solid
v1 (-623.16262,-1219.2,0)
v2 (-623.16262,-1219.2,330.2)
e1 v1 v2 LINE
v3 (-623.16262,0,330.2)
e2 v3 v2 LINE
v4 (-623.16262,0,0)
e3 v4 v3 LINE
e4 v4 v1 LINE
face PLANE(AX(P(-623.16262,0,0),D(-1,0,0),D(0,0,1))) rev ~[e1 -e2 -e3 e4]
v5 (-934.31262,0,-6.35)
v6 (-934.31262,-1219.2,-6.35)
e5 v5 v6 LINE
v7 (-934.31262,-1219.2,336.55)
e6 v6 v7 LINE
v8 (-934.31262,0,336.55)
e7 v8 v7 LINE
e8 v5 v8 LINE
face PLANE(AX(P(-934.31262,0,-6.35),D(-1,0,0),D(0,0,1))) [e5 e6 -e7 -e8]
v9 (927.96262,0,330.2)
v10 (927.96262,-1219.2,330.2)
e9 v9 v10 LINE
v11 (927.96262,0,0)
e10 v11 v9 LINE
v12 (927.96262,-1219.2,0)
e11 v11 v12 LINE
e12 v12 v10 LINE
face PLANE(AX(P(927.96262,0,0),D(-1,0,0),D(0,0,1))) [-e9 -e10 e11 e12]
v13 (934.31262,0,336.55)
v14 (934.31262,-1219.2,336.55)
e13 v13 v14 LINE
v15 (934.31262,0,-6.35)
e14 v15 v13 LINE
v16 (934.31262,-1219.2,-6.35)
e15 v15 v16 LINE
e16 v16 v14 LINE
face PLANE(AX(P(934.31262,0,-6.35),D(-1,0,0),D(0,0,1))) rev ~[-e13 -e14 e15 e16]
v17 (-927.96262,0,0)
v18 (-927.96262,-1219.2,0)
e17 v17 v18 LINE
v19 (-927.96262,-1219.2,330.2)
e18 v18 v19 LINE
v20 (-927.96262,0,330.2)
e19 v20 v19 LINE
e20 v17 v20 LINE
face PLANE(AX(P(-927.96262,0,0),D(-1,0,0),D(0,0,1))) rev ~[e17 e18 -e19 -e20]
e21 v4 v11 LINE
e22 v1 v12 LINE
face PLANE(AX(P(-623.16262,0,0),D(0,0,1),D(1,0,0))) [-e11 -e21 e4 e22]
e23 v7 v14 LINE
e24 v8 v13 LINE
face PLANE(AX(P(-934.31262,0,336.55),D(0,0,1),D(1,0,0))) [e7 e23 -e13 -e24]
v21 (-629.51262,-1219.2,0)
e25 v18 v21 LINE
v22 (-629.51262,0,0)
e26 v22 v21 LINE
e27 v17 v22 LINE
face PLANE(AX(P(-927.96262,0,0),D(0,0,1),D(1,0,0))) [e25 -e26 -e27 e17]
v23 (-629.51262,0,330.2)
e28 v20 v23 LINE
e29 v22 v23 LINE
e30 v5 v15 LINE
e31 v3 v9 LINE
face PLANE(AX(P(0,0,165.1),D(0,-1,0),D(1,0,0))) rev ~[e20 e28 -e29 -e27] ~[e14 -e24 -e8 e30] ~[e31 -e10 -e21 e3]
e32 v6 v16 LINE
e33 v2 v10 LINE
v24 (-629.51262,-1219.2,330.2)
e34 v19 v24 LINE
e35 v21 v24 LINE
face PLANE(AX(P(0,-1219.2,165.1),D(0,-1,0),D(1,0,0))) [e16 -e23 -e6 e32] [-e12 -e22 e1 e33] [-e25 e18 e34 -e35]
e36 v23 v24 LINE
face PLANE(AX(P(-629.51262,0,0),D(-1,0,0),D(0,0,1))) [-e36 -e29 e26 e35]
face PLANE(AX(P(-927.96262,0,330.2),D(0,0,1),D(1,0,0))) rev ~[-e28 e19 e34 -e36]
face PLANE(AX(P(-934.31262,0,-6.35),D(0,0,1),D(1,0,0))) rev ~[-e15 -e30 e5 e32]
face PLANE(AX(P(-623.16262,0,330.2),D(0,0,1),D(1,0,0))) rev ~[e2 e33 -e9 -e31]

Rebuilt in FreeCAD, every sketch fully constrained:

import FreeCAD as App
import Part
import Sketcher
from FreeCAD import Vector
Q = App.Units.Quantity

doc = App.newDocument("Part")
params = doc.addObject("Spreadsheet::Sheet", "Params")
for row, (alias, value) in enumerate([
    ("sketch1_height", "13 in"),
    ("sketch1_height2", "13.5 in"),
    ("sketch1_width", "11.75 in"),
    ("pad1_length", "48 in"),
], start=1):
    params.set(f"A{row}", alias)
    params.set(f"B{row}", "=" + value)
    params.setAlias(f"B{row}", alias)

body = doc.addObject("PartDesign::Body", "Body")

# Sketch on XZ plane
sketch1 = doc.addObject("Sketcher::SketchObject", "Sketch")
body.addObject(sketch1)
sketch1.AttachmentSupport = (doc.XZ_Plane, [""])
sketch1.MapMode = "FlatFace"
sketch1.addGeometry(Part.LineSegment(Vector(-934.31262, 336.55, 0), Vector(-934.31262, -6.35, 0)), False)
sketch1.addGeometry(Part.LineSegment(Vector(-934.31262, -6.35, 0), Vector(934.31262, -6.35, 0)), False)
sketch1.addGeometry(Part.LineSegment(Vector(934.31262, -6.35, 0), Vector(934.31262, 336.55, 0)), False)
sketch1.addGeometry(Part.LineSegment(Vector(934.31262, 336.55, 0), Vector(-934.31262, 336.55, 0)), False)
sketch1.addGeometry(Part.LineSegment(Vector(-629.51262, 0, 0), Vector(-927.96262, 0, 0)), False)
sketch1.addGeometry(Part.LineSegment(Vector(-927.96262, 0, 0), Vector(-927.96262, 330.2, 0)), False)
sketch1.addGeometry(Part.LineSegment(Vector(-927.96262, 330.2, 0), Vector(-629.51262, 330.2, 0)), False)
sketch1.addGeometry(Part.LineSegment(Vector(-629.51262, 330.2, 0), Vector(-629.51262, 0, 0)), False)
sketch1.addGeometry(Part.LineSegment(Vector(927.96262, 0, 0), Vector(-623.16262, 0, 0)), False)
sketch1.addGeometry(Part.LineSegment(Vector(-623.16262, 0, 0), Vector(-623.16262, 330.2, 0)), False)
sketch1.addGeometry(Part.LineSegment(Vector(-623.16262, 330.2, 0), Vector(927.96262, 330.2, 0)), False)
sketch1.addGeometry(Part.LineSegment(Vector(927.96262, 330.2, 0), Vector(927.96262, 0, 0)), False)
sketch1.addConstraint(Sketcher.Constraint("Coincident", 0, 2, 1, 1))
sketch1.addConstraint(Sketcher.Constraint("Coincident", 1, 2, 2, 1))
sketch1.addConstraint(Sketcher.Constraint("Coincident", 2, 2, 3, 1))
sketch1.addConstraint(Sketcher.Constraint("Coincident", 3, 2, 0, 1))
sketch1.addConstraint(Sketcher.Constraint("Coincident", 4, 2, 5, 1))
sketch1.addConstraint(Sketcher.Constraint("Coincident", 5, 2, 6, 1))
sketch1.addConstraint(Sketcher.Constraint("Coincident", 6, 2, 7, 1))
sketch1.addConstraint(Sketcher.Constraint("Coincident", 7, 2, 4, 1))
sketch1.addConstraint(Sketcher.Constraint("Coincident", 8, 2, 9, 1))
sketch1.addConstraint(Sketcher.Constraint("Coincident", 9, 2, 10, 1))
sketch1.addConstraint(Sketcher.Constraint("Coincident", 10, 2, 11, 1))
sketch1.addConstraint(Sketcher.Constraint("Coincident", 11, 2, 8, 1))
sketch1.addConstraint(Sketcher.Constraint("Vertical", 0))
sketch1.addConstraint(Sketcher.Constraint("Horizontal", 1))
sketch1.addConstraint(Sketcher.Constraint("Vertical", 2))
sketch1.addConstraint(Sketcher.Constraint("Horizontal", 3))
sketch1.addConstraint(Sketcher.Constraint("Horizontal", 4))
sketch1.addConstraint(Sketcher.Constraint("Vertical", 5))
sketch1.addConstraint(Sketcher.Constraint("Horizontal", 6))
sketch1.addConstraint(Sketcher.Constraint("Vertical", 7))
sketch1.addConstraint(Sketcher.Constraint("Horizontal", 8))
sketch1.addConstraint(Sketcher.Constraint("Vertical", 9))
sketch1.addConstraint(Sketcher.Constraint("Horizontal", 10))
sketch1.addConstraint(Sketcher.Constraint("Vertical", 11))
sketch1.addConstraint(Sketcher.Constraint("Symmetric", 4, 2, 11, 2, -1, 1))
sketch1.addConstraint(Sketcher.Constraint("PointOnObject", 4, 2, -1))
sketch1.addConstraint(Sketcher.Constraint("Horizontal", 6, 2, 9, 2))
sketch1.addConstraint(Sketcher.Constraint("DistanceY", 5, 1, 5, 2, Q("13 in")))
sketch1.addConstraint(Sketcher.Constraint("DistanceY", 0, 2, 0, 1, Q("13.5 in")))
sketch1.addConstraint(Sketcher.Constraint("DistanceX", 3, 2, 6, 2, Q("12 in")))
sketch1.addConstraint(Sketcher.Constraint("DistanceX", 4, 2, 8, 2, Q("12 in")))
sketch1.addConstraint(Sketcher.Constraint("DistanceX", 4, 2, 4, 1, Q("11.75 in")))
sketch1.addConstraint(Sketcher.Constraint("DistanceY", 0, 2, -1, 1, Q("0.25 in")))
sketch1.addConstraint(Sketcher.Constraint("DistanceX", 10, 2, 2, 2, Q("0.25 in")))
sketch1.addConstraint(Sketcher.Constraint("DistanceX", 1, 1, 1, 2, Q("1868.62524 mm")))
sketch1.setExpression("Constraints[27]", "Params.sketch1_height")
sketch1.setExpression("Constraints[28]", "Params.sketch1_height2")
sketch1.setExpression("Constraints[31]", "Params.sketch1_width")
pad1 = doc.addObject("PartDesign::Pad", "Pad")
body.addObject(pad1)
pad1.Profile = sketch1
pad1.setExpression("Length", "Params.pad1_length")

doc.recompute()
